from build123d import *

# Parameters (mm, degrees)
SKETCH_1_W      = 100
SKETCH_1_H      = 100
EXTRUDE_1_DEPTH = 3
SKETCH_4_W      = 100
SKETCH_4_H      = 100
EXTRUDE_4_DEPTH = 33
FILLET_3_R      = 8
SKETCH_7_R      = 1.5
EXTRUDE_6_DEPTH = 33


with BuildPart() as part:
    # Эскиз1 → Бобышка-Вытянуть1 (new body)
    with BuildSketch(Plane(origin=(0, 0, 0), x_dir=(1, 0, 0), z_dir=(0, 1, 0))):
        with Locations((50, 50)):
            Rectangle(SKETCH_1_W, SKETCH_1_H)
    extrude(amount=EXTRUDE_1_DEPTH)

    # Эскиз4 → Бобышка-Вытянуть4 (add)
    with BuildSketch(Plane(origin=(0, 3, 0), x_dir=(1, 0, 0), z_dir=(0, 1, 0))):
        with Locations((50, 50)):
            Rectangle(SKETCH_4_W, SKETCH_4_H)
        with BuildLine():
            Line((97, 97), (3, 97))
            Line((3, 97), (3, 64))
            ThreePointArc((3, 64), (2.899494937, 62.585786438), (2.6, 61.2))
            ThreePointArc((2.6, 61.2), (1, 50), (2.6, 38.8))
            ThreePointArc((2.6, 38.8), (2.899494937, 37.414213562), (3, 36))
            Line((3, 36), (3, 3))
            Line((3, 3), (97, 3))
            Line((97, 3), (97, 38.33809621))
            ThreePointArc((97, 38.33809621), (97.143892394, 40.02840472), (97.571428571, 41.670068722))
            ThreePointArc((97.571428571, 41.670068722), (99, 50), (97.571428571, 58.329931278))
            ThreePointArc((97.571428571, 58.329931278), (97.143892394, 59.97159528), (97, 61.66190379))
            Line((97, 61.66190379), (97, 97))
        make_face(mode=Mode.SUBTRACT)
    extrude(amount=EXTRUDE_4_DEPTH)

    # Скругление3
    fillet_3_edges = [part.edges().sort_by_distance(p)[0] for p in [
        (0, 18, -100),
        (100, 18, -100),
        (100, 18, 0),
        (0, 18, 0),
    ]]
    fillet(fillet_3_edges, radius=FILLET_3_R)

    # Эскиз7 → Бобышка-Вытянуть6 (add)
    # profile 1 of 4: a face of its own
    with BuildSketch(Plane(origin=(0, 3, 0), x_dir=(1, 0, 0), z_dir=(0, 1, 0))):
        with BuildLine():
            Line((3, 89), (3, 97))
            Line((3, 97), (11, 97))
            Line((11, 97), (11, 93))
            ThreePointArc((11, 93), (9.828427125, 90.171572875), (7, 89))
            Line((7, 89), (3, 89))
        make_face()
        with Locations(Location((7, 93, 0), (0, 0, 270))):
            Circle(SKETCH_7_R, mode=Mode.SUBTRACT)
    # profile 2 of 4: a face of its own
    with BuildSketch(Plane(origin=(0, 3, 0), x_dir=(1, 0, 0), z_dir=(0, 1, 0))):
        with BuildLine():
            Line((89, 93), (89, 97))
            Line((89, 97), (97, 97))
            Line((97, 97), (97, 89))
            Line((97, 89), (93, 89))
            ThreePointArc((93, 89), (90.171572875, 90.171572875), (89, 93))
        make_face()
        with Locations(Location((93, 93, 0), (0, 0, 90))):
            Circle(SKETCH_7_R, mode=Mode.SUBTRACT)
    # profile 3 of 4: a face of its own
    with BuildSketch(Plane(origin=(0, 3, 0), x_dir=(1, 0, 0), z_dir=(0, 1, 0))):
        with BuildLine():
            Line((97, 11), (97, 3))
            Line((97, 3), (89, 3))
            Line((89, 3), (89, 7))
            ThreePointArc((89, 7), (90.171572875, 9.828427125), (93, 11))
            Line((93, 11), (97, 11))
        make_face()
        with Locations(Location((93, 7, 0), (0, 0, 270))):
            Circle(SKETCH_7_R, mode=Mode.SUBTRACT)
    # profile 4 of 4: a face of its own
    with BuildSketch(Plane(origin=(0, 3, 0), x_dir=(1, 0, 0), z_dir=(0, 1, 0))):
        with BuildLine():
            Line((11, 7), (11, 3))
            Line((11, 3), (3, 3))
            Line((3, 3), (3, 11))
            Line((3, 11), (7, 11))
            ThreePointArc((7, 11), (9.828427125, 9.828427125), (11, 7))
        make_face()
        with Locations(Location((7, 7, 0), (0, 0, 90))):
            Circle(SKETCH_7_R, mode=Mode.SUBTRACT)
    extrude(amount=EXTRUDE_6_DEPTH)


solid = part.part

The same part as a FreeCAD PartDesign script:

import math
import FreeCAD as App
import Part
import Sketcher
from FreeCAD import Vector


def edges_at(feature, points):
    """Names of the edges that pass closest to the given points."""
    edges = feature.Shape.Edges
    near = lambda p: min(range(len(edges)), key=lambda i: edges[i].distToShape(Part.Vertex(*p))[0])
    return sorted({f"Edge{near(p) + 1}" for p in points})

doc = App.newDocument("Part")
body = doc.addObject("PartDesign::Body", "Body")

# Sketch on XZ plane
sketch1 = body.newObject("Sketcher::SketchObject", "Sketch")
sketch1.AttachmentSupport = (doc.getObject("XZ_Plane"), [""])
sketch1.MapMode = "FlatFace"
sketch1.addGeometry([
    Part.LineSegment(Vector(0, -100, 0), Vector(0, 0, 0)),
    Part.LineSegment(Vector(0, 0, 0), Vector(100, 0, 0)),
    Part.LineSegment(Vector(100, 0, 0), Vector(100, -100, 0)),
    Part.LineSegment(Vector(100, -100, 0), Vector(0, -100, 0)),
], False)
sketch1.addConstraint([
    Sketcher.Constraint("Coincident", 0, 2, 1, 1),
    Sketcher.Constraint("Coincident", 1, 2, 2, 1),
    Sketcher.Constraint("Coincident", 2, 2, 3, 1),
    Sketcher.Constraint("Coincident", 3, 2, 0, 1),
    Sketcher.Constraint("Vertical", 0),
    Sketcher.Constraint("Horizontal", 1),
    Sketcher.Constraint("Vertical", 2),
    Sketcher.Constraint("Horizontal", 3),
    Sketcher.Constraint("Coincident", 0, 2, -1, 1),
    Sketcher.Constraint("Equal", 3, 0),
    Sketcher.Constraint("DistanceX", 1, 1, 1, 2, 100.0),
])
pad1 = body.newObject("PartDesign::Pad", "Pad")
pad1.Profile = sketch1
pad1.Length = 3
pad1.Reversed = True

# Sketch on XZ plane
sketch2 = body.newObject("Sketcher::SketchObject", "Sketch001")
sketch2.AttachmentSupport = (doc.getObject("XZ_Plane"), [""])
sketch2.MapMode = "FlatFace"
sketch2.AttachmentOffset = App.Placement(Vector(0, 0, -3), App.Rotation())
sketch2.addGeometry([
    Part.LineSegment(Vector(0, -100, 0), Vector(0, 0, 0)),  # 0
    Part.LineSegment(Vector(0, 0, 0), Vector(100, 0, 0)),  # 1
    Part.LineSegment(Vector(100, 0, 0), Vector(100, -100, 0)),  # 2
    Part.LineSegment(Vector(100, -100, 0), Vector(0, -100, 0)),  # 3
    Part.LineSegment(Vector(3, -97, 0), Vector(97, -97, 0)),  # 4
    Part.LineSegment(Vector(97, -97, 0), Vector(97, -61.661904, 0)),  # 5
    Part.ArcOfCircle(Part.Circle(Vector(107, -61.661904, 0), Vector(0, 0, 1), 10), math.radians(160.537049), math.radians(180)),  # 6
    Part.ArcOfCircle(Part.Circle(Vector(74, -50, 0), Vector(0, 0, 1), 25), math.radians(-19.462951), math.radians(19.462951)),  # 7
    Part.ArcOfCircle(Part.Circle(Vector(107, -38.338096, 0), Vector(0, 0, 1), 10), math.radians(-180), math.radians(-160.537049)),  # 8
    Part.LineSegment(Vector(97, -38.338096, 0), Vector(97, -3, 0)),  # 9
    Part.LineSegment(Vector(97, -3, 0), Vector(3, -3, 0)),  # 10
    Part.LineSegment(Vector(3, -3, 0), Vector(3, -36, 0)),  # 11
    Part.ArcOfCircle(Part.Circle(Vector(-7, -36, 0), Vector(0, 0, 1), 10), math.radians(-16.260205), math.radians(0)),  # 12
    Part.ArcOfCircle(Part.Circle(Vector(41, -50, 0), Vector(0, 0, 1), 40), math.radians(163.739795), math.radians(196.260205)),  # 13
    Part.ArcOfCircle(Part.Circle(Vector(-7, -64, 0), Vector(0, 0, 1), 10), math.radians(0), math.radians(16.260205)),  # 14
    Part.LineSegment(Vector(3, -64, 0), Vector(3, -97, 0)),  # 15
], False)
sketch2.addConstraint([
    Sketcher.Constraint("Coincident", 0, 2, 1, 1),
    Sketcher.Constraint("Coincident", 1, 2, 2, 1),
    Sketcher.Constraint("Coincident", 2, 2, 3, 1),
    Sketcher.Constraint("Coincident", 3, 2, 0, 1),
    Sketcher.Constraint("Coincident", 4, 2, 5, 1),
    Sketcher.Constraint("Tangent", 5, 2, 6, 2),
    Sketcher.Constraint("Tangent", 6, 1, 7, 1),
    Sketcher.Constraint("Tangent", 7, 2, 8, 2),
    Sketcher.Constraint("Tangent", 8, 1, 9, 1),
    Sketcher.Constraint("Coincident", 9, 2, 10, 1),
    Sketcher.Constraint("Coincident", 10, 2, 11, 1),
    Sketcher.Constraint("Tangent", 11, 2, 12, 2),
    Sketcher.Constraint("Tangent", 12, 1, 13, 1),
    Sketcher.Constraint("Tangent", 13, 2, 14, 2),
    Sketcher.Constraint("Tangent", 14, 1, 15, 1),
    Sketcher.Constraint("Coincident", 15, 2, 4, 1),
    Sketcher.Constraint("Vertical", 0),
    Sketcher.Constraint("Horizontal", 1),
    Sketcher.Constraint("Vertical", 2),
    Sketcher.Constraint("Horizontal", 3),
    Sketcher.Constraint("Horizontal", 4),
    Sketcher.Constraint("Vertical", 5),
    Sketcher.Constraint("Vertical", 9),
    Sketcher.Constraint("Horizontal", 10),
    Sketcher.Constraint("Vertical", 11),
    Sketcher.Constraint("Vertical", 15),
    Sketcher.Constraint("Coincident", 0, 2, -1, 1),
    Sketcher.Constraint("Equal", 6, 8),
    Sketcher.Constraint("Equal", 8, 12),
    Sketcher.Constraint("Equal", 12, 14),
    Sketcher.Constraint("Horizontal", 7, 3, 13, 3),
    Sketcher.Constraint("Vertical", 6, 3, 8, 3),
    Sketcher.Constraint("Vertical", 12, 3, 14, 3),
    Sketcher.Constraint("Equal", 3, 0),
    Sketcher.Constraint("Equal", 5, 9),
    Sketcher.Constraint("Radius", 6, 10.0),
    Sketcher.Constraint("Radius", 7, 25.0),
    Sketcher.Constraint("Radius", 13, 40.0),
    Sketcher.Constraint("DistanceX", 1, 1, 1, 2, 100.0),
    Sketcher.Constraint("DistanceX", 4, 1, 4, 2, 94.0),
    Sketcher.Constraint("DistanceY", 11, 2, 11, 1, 33.0),
    Sketcher.Constraint("DistanceX", -1, 1, 6, 3, 107.0),
    Sketcher.Constraint("DistanceX", -1, 1, 7, 3, 74.0),
    Sketcher.Constraint("DistanceY", 7, 3, -1, 1, 50.0),
    Sketcher.Constraint("DistanceY", 12, 3, -1, 1, 36.0),
])
pad2 = body.newObject("PartDesign::Pad", "Pad001")
pad2.Profile = sketch2
pad2.Length = 33
pad2.Reversed = True
doc.recompute()

fillet = body.newObject("PartDesign::Fillet", "Fillet")
fillet.Base = (pad2, edges_at(pad2, [
    (0, 18, -100),
    (100, 18, -100),
    (100, 18, 0),
    (0, 18, 0),
]))
fillet.Radius = 8

# Sketch on XZ plane
sketch3 = body.newObject("Sketcher::SketchObject", "Sketch002")
sketch3.AttachmentSupport = (doc.getObject("XZ_Plane"), [""])
sketch3.MapMode = "FlatFace"
sketch3.AttachmentOffset = App.Placement(Vector(0, 0, -3), App.Rotation())
sketch3.addGeometry([
    Part.LineSegment(Vector(3, -97, 0), Vector(3, -89, 0)),  # 0
    Part.LineSegment(Vector(3, -89, 0), Vector(7, -89, 0)),  # 1
    Part.ArcOfCircle(Part.Circle(Vector(7, -93, 0), Vector(0, 0, 1), 4), math.radians(0), math.radians(90)),  # 2
    Part.LineSegment(Vector(11, -93, 0), Vector(11, -97, 0)),  # 3
    Part.LineSegment(Vector(11, -97, 0), Vector(3, -97, 0)),  # 4
    Part.Circle(Vector(7, -93, 0), Vector(0, 0, 1), 1.5),  # 5
    Part.LineSegment(Vector(89, -97, 0), Vector(89, -93, 0)),  # 6
    Part.ArcOfCircle(Part.Circle(Vector(93, -93, 0), Vector(0, 0, 1), 4), math.radians(90), math.radians(180)),  # 7
    Part.LineSegment(Vector(93, -89, 0), Vector(97, -89, 0)),  # 8
    Part.LineSegment(Vector(97, -89, 0), Vector(97, -97, 0)),  # 9
    Part.LineSegment(Vector(97, -97, 0), Vector(89, -97, 0)),  # 10
    Part.Circle(Vector(93, -93, 0), Vector(0, 0, 1), 1.5),  # 11
    Part.LineSegment(Vector(97, -3, 0), Vector(97, -11, 0)),  # 12
    Part.LineSegment(Vector(97, -11, 0), Vector(93, -11, 0)),  # 13
    Part.ArcOfCircle(Part.Circle(Vector(93, -7, 0), Vector(0, 0, 1), 4), math.radians(180), math.radians(270)),  # 14
    Part.LineSegment(Vector(89, -7, 0), Vector(89, -3, 0)),  # 15
    Part.LineSegment(Vector(89, -3, 0), Vector(97, -3, 0)),  # 16
    Part.Circle(Vector(93, -7, 0), Vector(0, 0, 1), 1.5),  # 17
    Part.LineSegment(Vector(11, -3, 0), Vector(11, -7, 0)),  # 18
    Part.ArcOfCircle(Part.Circle(Vector(7, -7, 0), Vector(0, 0, 1), 4), math.radians(-90), math.radians(0)),  # 19
    Part.LineSegment(Vector(7, -11, 0), Vector(3, -11, 0)),  # 20
    Part.LineSegment(Vector(3, -11, 0), Vector(3, -3, 0)),  # 21
    Part.LineSegment(Vector(3, -3, 0), Vector(11, -3, 0)),  # 22
    Part.Circle(Vector(7, -7, 0), Vector(0, 0, 1), 1.5),  # 23
], False)
sketch3.addConstraint([
    Sketcher.Constraint("Coincident", 0, 2, 1, 1),
    Sketcher.Constraint("Tangent", 1, 2, 2, 2),
    Sketcher.Constraint("Tangent", 2, 1, 3, 1),
    Sketcher.Constraint("Coincident", 3, 2, 4, 1),
    Sketcher.Constraint("Coincident", 4, 2, 0, 1),
    Sketcher.Constraint("Tangent", 6, 2, 7, 2),
    Sketcher.Constraint("Tangent", 7, 1, 8, 1),
    Sketcher.Constraint("Coincident", 8, 2, 9, 1),
    Sketcher.Constraint("Coincident", 9, 2, 10, 1),
    Sketcher.Constraint("Coincident", 10, 2, 6, 1),
    Sketcher.Constraint("Coincident", 12, 2, 13, 1),
    Sketcher.Constraint("Tangent", 13, 2, 14, 2),
    Sketcher.Constraint("Tangent", 14, 1, 15, 1),
    Sketcher.Constraint("Coincident", 15, 2, 16, 1),
    Sketcher.Constraint("Coincident", 16, 2, 12, 1),
    Sketcher.Constraint("Tangent", 18, 2, 19, 2),
    Sketcher.Constraint("Tangent", 19, 1, 20, 1),
    Sketcher.Constraint("Coincident", 20, 2, 21, 1),
    Sketcher.Constraint("Coincident", 21, 2, 22, 1),
    Sketcher.Constraint("Coincident", 22, 2, 18, 1),
    Sketcher.Constraint("Vertical", 0),
    Sketcher.Constraint("Horizontal", 1),
    Sketcher.Constraint("Vertical", 3),
    Sketcher.Constraint("Horizontal", 4),
    Sketcher.Constraint("Vertical", 6),
    Sketcher.Constraint("Horizontal", 8),
    Sketcher.Constraint("Vertical", 9),
    Sketcher.Constraint("Horizontal", 10),
    Sketcher.Constraint("Vertical", 12),
    Sketcher.Constraint("Horizontal", 13),
    Sketcher.Constraint("Vertical", 15),
    Sketcher.Constraint("Horizontal", 16),
    Sketcher.Constraint("Vertical", 18),
    Sketcher.Constraint("Horizontal", 20),
    Sketcher.Constraint("Vertical", 21),
    Sketcher.Constraint("Horizontal", 22),
    Sketcher.Constraint("Coincident", 5, 3, 2, 3),
    Sketcher.Constraint("Coincident", 11, 3, 7, 3),
    Sketcher.Constraint("Coincident", 17, 3, 14, 3),
    Sketcher.Constraint("Coincident", 23, 3, 19, 3),
    Sketcher.Constraint("Equal", 2, 7),
    Sketcher.Constraint("Equal", 5, 11),
    Sketcher.Constraint("Equal", 7, 14),
    Sketcher.Constraint("Equal", 11, 17),
    Sketcher.Constraint("Equal", 14, 19),
    Sketcher.Constraint("Equal", 17, 23),
    Sketcher.Constraint("Horizontal", 5, 3, 7, 3),
    Sketcher.Constraint("Horizontal", 17, 3, 19, 3),
    Sketcher.Constraint("Horizontal", 4, 2, 9, 2),
    Sketcher.Constraint("Horizontal", 16, 2, 21, 2),
    Sketcher.Constraint("Vertical", 11, 3, 14, 3),
    Sketcher.Constraint("Vertical", 5, 3, 19, 3),
    Sketcher.Constraint("Vertical", 9, 2, 12, 2),
    Sketcher.Constraint("Vertical", 4, 2, 20, 2),
    Sketcher.Constraint("Equal", 1, 8),
    Sketcher.Constraint("Equal", 22, 0),
    Sketcher.Constraint("Equal", 9, 12),
    Sketcher.Constraint("Diameter", 5, 3.0),
    Sketcher.Constraint("Radius", 2, 4.0),
    Sketcher.Constraint("DistanceX", 1, 1, 1, 2, 4.0),
    Sketcher.Constraint("DistanceX", -1, 1, 2, 3, 7.0),
    Sketcher.Constraint("DistanceY", 2, 3, -1, 1, 93.0),
    Sketcher.Constraint("DistanceX", -1, 1, 7, 3, 93.0),
    Sketcher.Constraint("DistanceY", 14, 3, -1, 1, 7.0),
])
pad3 = body.newObject("PartDesign::Pad", "Pad002")
pad3.Profile = sketch3
pad3.Length = 33
pad3.Reversed = True

doc.recompute()
